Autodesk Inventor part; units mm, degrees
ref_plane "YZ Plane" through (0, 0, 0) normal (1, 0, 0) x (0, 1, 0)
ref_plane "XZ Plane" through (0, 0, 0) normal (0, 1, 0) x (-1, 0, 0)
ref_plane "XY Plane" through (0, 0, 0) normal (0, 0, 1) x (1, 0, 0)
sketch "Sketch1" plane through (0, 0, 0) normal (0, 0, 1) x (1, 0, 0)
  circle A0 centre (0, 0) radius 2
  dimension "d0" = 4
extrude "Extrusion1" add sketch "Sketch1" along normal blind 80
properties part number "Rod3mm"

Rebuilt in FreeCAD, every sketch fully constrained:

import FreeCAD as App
import Part
import Sketcher

V = App.Vector

doc = App.newDocument("Part")
body = doc.addObject("PartDesign::Body", "Body")

sketch1 = body.newObject("Sketcher::SketchObject", "Sketch")
sketch1.AttachmentSupport = (doc.getObject("XY_Plane"), [""])
sketch1.MapMode = "FlatFace"
sketch1.addGeometry(Part.Circle(V(0, 0, 0), V(0, 0, 1), 2), False)
sketch1.addConstraint([
    Sketcher.Constraint("Coincident", 0, 3, -1, 1),
    Sketcher.Constraint("Diameter", 0, 4.0),
])
pad1 = body.newObject("PartDesign::Pad", "Pad")
pad1.Profile = sketch1
pad1.Length = 80

doc.recompute()
